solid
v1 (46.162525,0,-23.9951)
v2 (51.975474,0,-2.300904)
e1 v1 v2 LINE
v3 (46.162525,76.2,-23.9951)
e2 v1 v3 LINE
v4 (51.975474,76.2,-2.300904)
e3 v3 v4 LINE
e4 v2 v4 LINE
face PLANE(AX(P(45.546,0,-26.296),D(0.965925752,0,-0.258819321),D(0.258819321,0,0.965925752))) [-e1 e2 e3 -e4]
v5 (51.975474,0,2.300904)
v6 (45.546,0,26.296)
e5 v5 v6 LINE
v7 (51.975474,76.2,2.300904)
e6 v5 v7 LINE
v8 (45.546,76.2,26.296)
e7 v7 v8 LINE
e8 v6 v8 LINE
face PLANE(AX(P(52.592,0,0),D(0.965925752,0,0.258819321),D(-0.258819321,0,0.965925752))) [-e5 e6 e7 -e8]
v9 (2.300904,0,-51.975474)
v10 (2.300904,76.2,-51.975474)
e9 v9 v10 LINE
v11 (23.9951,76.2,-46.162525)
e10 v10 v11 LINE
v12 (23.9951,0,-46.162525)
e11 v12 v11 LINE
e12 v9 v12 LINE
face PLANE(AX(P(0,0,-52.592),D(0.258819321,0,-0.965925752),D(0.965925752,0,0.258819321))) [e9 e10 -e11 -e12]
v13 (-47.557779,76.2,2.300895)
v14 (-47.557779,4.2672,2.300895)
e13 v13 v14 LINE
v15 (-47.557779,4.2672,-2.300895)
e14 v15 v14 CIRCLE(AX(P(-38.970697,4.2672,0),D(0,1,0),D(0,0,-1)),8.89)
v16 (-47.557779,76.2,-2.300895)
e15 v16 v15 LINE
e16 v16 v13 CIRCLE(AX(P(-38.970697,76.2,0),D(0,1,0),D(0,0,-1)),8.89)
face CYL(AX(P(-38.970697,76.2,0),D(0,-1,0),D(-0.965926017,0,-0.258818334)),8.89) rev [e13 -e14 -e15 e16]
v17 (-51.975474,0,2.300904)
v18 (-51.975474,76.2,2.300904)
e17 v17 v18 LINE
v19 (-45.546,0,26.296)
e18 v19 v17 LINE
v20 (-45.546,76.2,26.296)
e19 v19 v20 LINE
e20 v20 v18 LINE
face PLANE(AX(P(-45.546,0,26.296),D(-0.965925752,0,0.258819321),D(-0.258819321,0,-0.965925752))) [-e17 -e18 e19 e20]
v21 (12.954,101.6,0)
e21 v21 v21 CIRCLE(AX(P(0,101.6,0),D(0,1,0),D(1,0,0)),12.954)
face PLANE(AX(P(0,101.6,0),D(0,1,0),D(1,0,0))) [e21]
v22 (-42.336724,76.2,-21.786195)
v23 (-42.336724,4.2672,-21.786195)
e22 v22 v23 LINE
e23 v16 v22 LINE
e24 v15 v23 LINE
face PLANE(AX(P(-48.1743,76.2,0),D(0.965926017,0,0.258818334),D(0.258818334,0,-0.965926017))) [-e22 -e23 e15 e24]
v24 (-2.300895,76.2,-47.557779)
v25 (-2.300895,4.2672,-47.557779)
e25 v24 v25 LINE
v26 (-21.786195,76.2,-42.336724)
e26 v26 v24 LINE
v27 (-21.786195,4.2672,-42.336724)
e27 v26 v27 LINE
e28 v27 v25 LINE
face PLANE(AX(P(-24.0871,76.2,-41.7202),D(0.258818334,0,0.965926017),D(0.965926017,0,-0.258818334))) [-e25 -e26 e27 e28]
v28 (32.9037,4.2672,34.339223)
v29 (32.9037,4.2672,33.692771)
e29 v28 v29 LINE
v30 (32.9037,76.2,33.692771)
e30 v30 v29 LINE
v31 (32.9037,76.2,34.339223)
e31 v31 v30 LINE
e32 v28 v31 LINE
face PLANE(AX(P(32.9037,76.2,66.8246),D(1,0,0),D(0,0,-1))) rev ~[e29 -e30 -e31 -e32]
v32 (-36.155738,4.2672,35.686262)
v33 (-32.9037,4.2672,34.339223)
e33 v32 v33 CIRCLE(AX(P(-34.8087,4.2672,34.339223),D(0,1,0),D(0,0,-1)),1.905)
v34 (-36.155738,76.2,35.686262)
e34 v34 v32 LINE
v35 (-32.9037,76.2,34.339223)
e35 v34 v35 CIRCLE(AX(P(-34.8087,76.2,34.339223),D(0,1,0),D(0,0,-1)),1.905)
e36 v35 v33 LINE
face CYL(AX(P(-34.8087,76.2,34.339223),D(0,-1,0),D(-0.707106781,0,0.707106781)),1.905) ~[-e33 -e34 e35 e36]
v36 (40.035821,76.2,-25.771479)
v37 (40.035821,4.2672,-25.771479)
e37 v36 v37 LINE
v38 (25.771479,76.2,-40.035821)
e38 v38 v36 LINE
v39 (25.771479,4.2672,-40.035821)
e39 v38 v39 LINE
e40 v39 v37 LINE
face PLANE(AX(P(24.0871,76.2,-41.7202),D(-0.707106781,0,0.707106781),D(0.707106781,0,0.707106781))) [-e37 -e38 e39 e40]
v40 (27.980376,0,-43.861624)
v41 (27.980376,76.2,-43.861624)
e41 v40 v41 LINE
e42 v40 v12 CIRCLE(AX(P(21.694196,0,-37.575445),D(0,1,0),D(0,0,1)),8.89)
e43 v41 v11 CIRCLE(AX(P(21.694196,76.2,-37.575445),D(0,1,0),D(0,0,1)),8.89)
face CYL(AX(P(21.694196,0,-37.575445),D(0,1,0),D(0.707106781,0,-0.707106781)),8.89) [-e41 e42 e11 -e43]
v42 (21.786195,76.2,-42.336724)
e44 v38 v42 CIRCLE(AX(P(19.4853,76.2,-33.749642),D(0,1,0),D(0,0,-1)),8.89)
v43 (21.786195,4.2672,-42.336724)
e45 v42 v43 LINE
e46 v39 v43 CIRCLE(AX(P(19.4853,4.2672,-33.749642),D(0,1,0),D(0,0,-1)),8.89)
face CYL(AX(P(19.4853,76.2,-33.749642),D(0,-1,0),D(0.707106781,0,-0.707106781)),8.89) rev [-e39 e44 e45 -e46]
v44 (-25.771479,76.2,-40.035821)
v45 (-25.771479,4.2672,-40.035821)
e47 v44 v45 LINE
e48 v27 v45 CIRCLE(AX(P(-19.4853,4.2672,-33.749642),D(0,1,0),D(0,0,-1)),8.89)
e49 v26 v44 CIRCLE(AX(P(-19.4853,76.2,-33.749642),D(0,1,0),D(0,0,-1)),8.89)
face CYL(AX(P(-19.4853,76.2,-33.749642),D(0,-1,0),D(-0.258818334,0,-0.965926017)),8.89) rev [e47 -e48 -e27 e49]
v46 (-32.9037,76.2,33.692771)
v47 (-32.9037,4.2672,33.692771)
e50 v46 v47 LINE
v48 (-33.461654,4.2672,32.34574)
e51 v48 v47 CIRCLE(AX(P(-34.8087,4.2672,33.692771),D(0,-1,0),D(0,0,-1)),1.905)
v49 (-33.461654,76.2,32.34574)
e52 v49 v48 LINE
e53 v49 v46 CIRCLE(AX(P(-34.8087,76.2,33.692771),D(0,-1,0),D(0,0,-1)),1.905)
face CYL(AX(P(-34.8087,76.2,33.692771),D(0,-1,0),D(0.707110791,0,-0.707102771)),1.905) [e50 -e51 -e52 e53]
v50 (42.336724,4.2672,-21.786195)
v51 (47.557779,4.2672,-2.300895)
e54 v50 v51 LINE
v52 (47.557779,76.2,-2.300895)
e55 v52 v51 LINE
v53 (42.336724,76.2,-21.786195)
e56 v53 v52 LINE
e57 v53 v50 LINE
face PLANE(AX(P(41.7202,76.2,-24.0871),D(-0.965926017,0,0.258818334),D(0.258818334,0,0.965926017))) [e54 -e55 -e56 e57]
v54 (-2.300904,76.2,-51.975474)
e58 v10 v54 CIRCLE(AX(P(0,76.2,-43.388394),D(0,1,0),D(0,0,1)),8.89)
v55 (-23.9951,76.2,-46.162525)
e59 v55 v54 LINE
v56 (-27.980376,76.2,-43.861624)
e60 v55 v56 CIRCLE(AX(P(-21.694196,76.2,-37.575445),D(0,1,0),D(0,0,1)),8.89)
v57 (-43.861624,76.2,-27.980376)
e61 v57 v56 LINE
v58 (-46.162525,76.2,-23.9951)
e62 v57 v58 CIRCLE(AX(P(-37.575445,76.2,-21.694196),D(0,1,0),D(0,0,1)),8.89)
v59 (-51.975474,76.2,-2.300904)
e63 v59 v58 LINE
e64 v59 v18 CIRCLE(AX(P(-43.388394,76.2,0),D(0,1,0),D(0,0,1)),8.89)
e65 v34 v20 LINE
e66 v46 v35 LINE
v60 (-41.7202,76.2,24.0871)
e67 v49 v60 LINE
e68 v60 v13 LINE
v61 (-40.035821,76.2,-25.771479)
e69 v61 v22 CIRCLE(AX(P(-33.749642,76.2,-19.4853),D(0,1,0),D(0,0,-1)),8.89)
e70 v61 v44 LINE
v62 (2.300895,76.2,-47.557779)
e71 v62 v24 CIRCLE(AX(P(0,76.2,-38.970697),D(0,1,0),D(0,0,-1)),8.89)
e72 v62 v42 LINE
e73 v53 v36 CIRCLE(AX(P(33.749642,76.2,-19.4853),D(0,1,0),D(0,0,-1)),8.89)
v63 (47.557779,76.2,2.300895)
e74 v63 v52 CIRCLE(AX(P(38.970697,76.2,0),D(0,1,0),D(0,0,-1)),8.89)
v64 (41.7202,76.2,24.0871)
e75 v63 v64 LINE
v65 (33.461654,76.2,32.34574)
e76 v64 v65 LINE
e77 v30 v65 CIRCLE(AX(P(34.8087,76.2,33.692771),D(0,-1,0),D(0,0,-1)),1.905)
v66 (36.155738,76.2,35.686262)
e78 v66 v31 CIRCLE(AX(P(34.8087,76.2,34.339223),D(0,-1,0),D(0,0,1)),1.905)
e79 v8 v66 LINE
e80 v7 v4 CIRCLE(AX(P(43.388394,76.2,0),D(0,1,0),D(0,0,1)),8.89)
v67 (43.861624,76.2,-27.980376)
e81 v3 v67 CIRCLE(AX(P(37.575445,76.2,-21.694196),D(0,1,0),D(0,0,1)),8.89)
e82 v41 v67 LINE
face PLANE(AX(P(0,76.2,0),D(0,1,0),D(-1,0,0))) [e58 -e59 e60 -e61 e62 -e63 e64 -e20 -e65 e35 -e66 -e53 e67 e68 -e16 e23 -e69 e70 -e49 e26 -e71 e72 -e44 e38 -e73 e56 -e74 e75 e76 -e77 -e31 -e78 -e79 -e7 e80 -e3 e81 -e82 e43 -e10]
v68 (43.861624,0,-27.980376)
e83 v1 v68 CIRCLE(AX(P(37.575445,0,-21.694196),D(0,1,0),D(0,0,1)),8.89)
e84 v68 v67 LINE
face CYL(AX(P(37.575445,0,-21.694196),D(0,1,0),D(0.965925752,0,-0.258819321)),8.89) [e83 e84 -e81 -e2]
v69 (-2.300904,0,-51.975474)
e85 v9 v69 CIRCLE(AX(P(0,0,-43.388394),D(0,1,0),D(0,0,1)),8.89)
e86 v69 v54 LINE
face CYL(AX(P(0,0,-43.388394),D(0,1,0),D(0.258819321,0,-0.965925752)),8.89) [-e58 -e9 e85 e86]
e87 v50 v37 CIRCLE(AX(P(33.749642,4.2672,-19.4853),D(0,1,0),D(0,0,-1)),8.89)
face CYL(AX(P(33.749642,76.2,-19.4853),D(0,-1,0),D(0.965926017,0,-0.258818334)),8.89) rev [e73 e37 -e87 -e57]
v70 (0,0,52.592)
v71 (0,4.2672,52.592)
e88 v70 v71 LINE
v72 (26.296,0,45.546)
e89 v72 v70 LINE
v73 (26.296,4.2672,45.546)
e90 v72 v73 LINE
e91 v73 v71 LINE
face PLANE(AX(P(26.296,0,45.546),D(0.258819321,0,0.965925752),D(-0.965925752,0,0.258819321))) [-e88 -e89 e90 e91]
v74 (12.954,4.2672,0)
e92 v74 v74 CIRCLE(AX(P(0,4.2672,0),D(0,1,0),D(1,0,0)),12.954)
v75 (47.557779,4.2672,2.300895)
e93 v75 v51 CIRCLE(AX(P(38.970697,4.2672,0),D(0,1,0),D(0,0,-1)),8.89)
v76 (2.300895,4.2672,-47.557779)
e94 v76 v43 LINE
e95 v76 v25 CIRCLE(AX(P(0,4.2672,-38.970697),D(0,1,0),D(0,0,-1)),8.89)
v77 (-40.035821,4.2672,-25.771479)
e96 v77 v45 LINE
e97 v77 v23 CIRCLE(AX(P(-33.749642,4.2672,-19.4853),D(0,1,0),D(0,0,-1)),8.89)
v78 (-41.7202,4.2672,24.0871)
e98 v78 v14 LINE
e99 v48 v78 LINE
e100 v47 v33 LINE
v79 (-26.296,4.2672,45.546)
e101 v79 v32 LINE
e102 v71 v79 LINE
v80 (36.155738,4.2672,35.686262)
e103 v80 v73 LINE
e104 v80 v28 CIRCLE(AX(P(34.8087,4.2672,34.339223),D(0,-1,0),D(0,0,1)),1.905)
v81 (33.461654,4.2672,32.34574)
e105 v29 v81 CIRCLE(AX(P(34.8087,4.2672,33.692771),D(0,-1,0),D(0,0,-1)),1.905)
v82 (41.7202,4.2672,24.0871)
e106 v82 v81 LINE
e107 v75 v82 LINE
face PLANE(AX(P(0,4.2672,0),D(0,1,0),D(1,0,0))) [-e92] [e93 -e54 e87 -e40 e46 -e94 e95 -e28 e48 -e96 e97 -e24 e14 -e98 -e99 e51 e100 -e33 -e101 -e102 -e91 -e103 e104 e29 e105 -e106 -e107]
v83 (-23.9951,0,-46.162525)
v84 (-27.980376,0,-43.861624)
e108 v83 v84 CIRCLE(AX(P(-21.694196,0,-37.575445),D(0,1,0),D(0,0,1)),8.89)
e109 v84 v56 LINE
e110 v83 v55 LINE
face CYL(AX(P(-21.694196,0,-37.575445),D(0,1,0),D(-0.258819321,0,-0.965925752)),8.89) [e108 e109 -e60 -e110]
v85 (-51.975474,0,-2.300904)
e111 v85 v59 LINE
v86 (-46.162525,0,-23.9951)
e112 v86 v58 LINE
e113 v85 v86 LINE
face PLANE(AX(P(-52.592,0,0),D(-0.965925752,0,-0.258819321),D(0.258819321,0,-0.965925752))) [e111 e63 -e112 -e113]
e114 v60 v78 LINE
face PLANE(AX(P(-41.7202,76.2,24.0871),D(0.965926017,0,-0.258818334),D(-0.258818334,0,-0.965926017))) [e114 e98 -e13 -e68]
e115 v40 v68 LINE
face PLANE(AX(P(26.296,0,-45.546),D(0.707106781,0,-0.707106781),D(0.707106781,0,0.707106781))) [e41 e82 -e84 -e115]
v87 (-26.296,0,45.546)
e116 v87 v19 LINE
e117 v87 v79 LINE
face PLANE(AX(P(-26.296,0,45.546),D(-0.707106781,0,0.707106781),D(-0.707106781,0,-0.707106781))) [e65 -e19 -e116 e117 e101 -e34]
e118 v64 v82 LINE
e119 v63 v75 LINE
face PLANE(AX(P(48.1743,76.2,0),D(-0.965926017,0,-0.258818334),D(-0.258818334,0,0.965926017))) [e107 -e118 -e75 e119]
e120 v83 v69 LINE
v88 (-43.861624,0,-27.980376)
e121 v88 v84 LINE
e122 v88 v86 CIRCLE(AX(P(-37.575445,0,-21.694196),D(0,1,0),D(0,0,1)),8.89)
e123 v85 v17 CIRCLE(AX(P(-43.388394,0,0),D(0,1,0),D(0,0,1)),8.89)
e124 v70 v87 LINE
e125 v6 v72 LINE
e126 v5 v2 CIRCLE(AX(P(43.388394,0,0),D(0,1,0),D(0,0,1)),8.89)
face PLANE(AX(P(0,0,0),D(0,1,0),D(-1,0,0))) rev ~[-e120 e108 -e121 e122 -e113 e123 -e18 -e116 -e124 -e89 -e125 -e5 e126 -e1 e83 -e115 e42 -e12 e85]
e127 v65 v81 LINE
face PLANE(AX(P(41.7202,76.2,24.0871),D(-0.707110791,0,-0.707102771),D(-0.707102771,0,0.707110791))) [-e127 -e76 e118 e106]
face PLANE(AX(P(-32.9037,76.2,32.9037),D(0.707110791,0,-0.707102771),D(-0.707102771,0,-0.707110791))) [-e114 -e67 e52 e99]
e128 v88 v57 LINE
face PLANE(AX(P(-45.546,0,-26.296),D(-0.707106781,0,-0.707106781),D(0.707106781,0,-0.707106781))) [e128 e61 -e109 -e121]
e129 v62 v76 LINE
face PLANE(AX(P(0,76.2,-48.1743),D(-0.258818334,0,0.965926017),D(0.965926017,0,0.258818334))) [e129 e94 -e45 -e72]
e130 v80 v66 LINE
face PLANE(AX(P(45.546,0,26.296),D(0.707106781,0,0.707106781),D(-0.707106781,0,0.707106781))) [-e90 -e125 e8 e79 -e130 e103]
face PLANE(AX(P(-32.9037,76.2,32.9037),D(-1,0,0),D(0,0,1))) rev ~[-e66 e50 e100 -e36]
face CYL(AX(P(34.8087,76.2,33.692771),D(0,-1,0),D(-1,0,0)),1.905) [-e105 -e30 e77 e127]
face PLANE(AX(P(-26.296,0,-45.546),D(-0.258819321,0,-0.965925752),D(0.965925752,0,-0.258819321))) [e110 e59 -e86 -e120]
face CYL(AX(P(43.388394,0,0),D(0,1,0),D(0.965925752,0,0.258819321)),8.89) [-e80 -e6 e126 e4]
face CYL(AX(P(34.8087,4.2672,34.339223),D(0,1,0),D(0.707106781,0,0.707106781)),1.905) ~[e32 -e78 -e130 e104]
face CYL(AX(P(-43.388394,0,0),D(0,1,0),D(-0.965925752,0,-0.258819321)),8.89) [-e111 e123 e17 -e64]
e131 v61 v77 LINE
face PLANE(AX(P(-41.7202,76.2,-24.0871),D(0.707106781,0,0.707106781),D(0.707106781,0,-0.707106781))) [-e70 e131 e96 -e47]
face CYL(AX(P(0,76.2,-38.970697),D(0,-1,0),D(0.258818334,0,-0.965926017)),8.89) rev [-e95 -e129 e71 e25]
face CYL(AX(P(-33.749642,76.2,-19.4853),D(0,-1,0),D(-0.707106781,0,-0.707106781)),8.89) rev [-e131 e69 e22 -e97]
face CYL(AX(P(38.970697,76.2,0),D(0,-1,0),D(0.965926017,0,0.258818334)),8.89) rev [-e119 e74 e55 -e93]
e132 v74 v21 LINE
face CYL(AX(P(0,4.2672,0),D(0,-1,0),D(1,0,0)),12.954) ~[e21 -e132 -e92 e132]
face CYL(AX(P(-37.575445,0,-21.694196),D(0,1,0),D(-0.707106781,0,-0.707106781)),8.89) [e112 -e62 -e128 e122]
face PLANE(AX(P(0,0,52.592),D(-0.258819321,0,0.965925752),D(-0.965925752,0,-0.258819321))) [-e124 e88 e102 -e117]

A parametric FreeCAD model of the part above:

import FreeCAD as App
import Part
import Sketcher
from FreeCAD import Vector
Q = App.Units.Quantity


def edges_at(feature, points):
    """Names of the edges that pass closest to the given points."""
    edges = feature.Shape.Edges
    near = lambda p: min(range(len(edges)), key=lambda i: edges[i].distToShape(Part.Vertex(*p))[0])
    return sorted({f"Edge{near(p) + 1}" for p in points})


def add_polygon(sketch, points):
    """Adds a closed chain of lines whose ends are joined by coincident constraints."""
    first, n = sketch.GeometryCount, len(points)
    for a, b in zip(points, points[1:] + points[:1]):
        sketch.addGeometry(Part.LineSegment(App.Vector(*a, 0), App.Vector(*b, 0)), False)
    for i in range(n):
        sketch.addConstraint(Sketcher.Constraint("Coincident", first + i, 2, first + (i + 1) % n, 1))

doc = App.newDocument("Part")
body = doc.addObject("PartDesign::Body", "Body")

# Sketch on XZ plane
sketch1 = body.newObject("Sketcher::SketchObject", "Sketch")
sketch1.AttachmentSupport = (doc.getObject("XZ_Plane"), [""])
sketch1.MapMode = "FlatFace"
add_polygon(sketch1, [(-46, -26), (-53, 0), (-46, 26), (-26, 46), (0, 53), (26, 46), (46, 26), (53, 0), (46, -26), (26, -46), (0, -53), (-26, -46)])  # lines 0-11
sketch1.addConstraint([
    Sketcher.Constraint("Symmetric", 0, 2, 6, 2, -1, 1),
    Sketcher.Constraint("Symmetric", 1, 2, 7, 2, -1, 1),
    Sketcher.Constraint("Symmetric", 2, 2, 8, 2, -1, 1),
    Sketcher.Constraint("Symmetric", 3, 2, 9, 2, -1, 1),
    Sketcher.Constraint("Symmetric", 4, 2, 10, 2, -1, 1),
    Sketcher.Constraint("Symmetric", 5, 2, 11, 2, -1, 1),
    Sketcher.Constraint("Symmetric", 2, 2, 4, 2, -2),
    Sketcher.Constraint("Symmetric", 1, 2, 5, 2, -2),
    Sketcher.Constraint("PointOnObject", 0, 2, -1),
    Sketcher.Constraint("PointOnObject", 3, 2, -2),
    Sketcher.Constraint("Perpendicular", 0, 3),
    Sketcher.Constraint("Perpendicular", 2, 5),
    Sketcher.Constraint("Equal", 1, 2),
    Sketcher.Constraint("Equal", 2, 3),
    Sketcher.Constraint("Angle", 0, Q("105 deg")),
    Sketcher.Constraint("Distance", 0, Q("1.0718 in")),
])
pad1 = body.newObject("PartDesign::Pad", "Pad")
pad1.Profile = sketch1
pad1.Length = Q("3 in")
pad1.Reversed = True

# Sketch on XZ plane
sketch2 = body.newObject("Sketcher::SketchObject", "Sketch001")
sketch2.AttachmentSupport = (doc.getObject("XZ_Plane"), [""])
sketch2.MapMode = "FlatFace"
sketch2.AttachmentOffset = App.Placement(Vector(0, 0, -3 * 25.4), App.Rotation())
add_polygon(sketch2, [(-42, -24), (-48, 0), (-42, 24), (-33, 33), (-33, 67), (33, 67), (33, 33), (42, 24), (48, 0), (42, -24), (24, -42), (0, -48), (-24, -42)])  # lines 0-12
sketch2.addConstraint([
    Sketcher.Constraint("Vertical", 3),
    Sketcher.Constraint("Horizontal", 4),
    Sketcher.Constraint("Vertical", 5),
    Sketcher.Constraint("Symmetric", 0, 2, 7, 2, -1, 1),
    Sketcher.Constraint("Symmetric", 1, 2, 8, 2, -1, 1),
    Sketcher.Constraint("Symmetric", 6, 2, 12, 2, -1, 1),
    Sketcher.Constraint("Symmetric", 2, 2, 5, 2, -2),
    Sketcher.Constraint("Symmetric", 1, 2, 6, 2, -2),
    Sketcher.Constraint("Symmetric", 9, 2, 11, 2, -2),
    Sketcher.Constraint("PointOnObject", 0, 2, -1),
    Sketcher.Constraint("PointOnObject", 10, 2, -2),
    Sketcher.Constraint("Perpendicular", 2, 6),
    Sketcher.Constraint("Perpendicular", 6, 9),
    Sketcher.Constraint("Perpendicular", 7, 10),
    Sketcher.Constraint("Equal", 8, 9),
    Sketcher.Constraint("Equal", 9, 10),
    Sketcher.Constraint("Angle", 0, Q("105 deg")),
    Sketcher.Constraint("DistanceX", 4, 1, 4, 2, Q("65.8074 mm")),
    Sketcher.Constraint("DistanceY", 3, 1, 3, 2, Q("33.921 mm")),
    Sketcher.Constraint("DistanceY", -1, 1, 1, 2, Q("0.9483 in")),
])
pocket1 = body.newObject("PartDesign::Pocket", "Pocket")
pocket1.Profile = sketch2
pocket1.Length = Q("2.832 in")
pocket1.Reversed = True
doc.recompute()

fillet = body.newObject("PartDesign::Fillet", "Fillet")
fillet.Base = (pocket1, edges_at(pocket1, [
    (-32.904, 40.234, 38.938),
    (-32.904, 40.234, 32.904),
    (32.904, 40.234, 38.938),
    (32.904, 40.234, 32.904),
]))
fillet.Radius = Q("0.075 in")

# Sketch on XZ plane
sketch3 = body.newObject("Sketcher::SketchObject", "Sketch002")
sketch3.AttachmentSupport = (doc.getObject("XZ_Plane"), [""])
sketch3.MapMode = "FlatFace"
sketch3.AttachmentOffset = App.Placement(Vector(0, 0, -0.168 * 25.4), App.Rotation())
sketch3.addGeometry(Part.Circle(Vector(0, 0, 0), Vector(0, 0, 1), 13), False)
sketch3.addConstraint([
    Sketcher.Constraint("Coincident", 0, 3, -1, 1),
    Sketcher.Constraint("Diameter", 0, Q("1.02 in")),
])
pad2 = body.newObject("PartDesign::Pad", "Pad001")
pad2.Profile = sketch3
pad2.Length = Q("3.832 in")
pad2.Reversed = True
doc.recompute()

fillet2 = body.newObject("PartDesign::Fillet", "Fillet001")
fillet2.Base = (pad2, edges_at(pad2, [
    (52.592, 38.1, 0),
    (45.546, 38.1, -26.296),
    (26.296, 38.1, -45.546),
    (0, 38.1, -52.592),
    (-26.296, 38.1, -45.546),
    (-45.546, 38.1, -26.296),
    (-52.592, 38.1, 0),
    (-48.174, 40.234, 0),
    (-41.72, 40.234, -24.087),
    (-24.087, 40.234, -41.72),
    (0, 40.234, -48.174),
    (24.087, 40.234, -41.72),
    (41.72, 40.234, -24.087),
    (48.174, 40.234, 0),
]))
fillet2.Radius = Q("0.35 in")

doc.recompute()
